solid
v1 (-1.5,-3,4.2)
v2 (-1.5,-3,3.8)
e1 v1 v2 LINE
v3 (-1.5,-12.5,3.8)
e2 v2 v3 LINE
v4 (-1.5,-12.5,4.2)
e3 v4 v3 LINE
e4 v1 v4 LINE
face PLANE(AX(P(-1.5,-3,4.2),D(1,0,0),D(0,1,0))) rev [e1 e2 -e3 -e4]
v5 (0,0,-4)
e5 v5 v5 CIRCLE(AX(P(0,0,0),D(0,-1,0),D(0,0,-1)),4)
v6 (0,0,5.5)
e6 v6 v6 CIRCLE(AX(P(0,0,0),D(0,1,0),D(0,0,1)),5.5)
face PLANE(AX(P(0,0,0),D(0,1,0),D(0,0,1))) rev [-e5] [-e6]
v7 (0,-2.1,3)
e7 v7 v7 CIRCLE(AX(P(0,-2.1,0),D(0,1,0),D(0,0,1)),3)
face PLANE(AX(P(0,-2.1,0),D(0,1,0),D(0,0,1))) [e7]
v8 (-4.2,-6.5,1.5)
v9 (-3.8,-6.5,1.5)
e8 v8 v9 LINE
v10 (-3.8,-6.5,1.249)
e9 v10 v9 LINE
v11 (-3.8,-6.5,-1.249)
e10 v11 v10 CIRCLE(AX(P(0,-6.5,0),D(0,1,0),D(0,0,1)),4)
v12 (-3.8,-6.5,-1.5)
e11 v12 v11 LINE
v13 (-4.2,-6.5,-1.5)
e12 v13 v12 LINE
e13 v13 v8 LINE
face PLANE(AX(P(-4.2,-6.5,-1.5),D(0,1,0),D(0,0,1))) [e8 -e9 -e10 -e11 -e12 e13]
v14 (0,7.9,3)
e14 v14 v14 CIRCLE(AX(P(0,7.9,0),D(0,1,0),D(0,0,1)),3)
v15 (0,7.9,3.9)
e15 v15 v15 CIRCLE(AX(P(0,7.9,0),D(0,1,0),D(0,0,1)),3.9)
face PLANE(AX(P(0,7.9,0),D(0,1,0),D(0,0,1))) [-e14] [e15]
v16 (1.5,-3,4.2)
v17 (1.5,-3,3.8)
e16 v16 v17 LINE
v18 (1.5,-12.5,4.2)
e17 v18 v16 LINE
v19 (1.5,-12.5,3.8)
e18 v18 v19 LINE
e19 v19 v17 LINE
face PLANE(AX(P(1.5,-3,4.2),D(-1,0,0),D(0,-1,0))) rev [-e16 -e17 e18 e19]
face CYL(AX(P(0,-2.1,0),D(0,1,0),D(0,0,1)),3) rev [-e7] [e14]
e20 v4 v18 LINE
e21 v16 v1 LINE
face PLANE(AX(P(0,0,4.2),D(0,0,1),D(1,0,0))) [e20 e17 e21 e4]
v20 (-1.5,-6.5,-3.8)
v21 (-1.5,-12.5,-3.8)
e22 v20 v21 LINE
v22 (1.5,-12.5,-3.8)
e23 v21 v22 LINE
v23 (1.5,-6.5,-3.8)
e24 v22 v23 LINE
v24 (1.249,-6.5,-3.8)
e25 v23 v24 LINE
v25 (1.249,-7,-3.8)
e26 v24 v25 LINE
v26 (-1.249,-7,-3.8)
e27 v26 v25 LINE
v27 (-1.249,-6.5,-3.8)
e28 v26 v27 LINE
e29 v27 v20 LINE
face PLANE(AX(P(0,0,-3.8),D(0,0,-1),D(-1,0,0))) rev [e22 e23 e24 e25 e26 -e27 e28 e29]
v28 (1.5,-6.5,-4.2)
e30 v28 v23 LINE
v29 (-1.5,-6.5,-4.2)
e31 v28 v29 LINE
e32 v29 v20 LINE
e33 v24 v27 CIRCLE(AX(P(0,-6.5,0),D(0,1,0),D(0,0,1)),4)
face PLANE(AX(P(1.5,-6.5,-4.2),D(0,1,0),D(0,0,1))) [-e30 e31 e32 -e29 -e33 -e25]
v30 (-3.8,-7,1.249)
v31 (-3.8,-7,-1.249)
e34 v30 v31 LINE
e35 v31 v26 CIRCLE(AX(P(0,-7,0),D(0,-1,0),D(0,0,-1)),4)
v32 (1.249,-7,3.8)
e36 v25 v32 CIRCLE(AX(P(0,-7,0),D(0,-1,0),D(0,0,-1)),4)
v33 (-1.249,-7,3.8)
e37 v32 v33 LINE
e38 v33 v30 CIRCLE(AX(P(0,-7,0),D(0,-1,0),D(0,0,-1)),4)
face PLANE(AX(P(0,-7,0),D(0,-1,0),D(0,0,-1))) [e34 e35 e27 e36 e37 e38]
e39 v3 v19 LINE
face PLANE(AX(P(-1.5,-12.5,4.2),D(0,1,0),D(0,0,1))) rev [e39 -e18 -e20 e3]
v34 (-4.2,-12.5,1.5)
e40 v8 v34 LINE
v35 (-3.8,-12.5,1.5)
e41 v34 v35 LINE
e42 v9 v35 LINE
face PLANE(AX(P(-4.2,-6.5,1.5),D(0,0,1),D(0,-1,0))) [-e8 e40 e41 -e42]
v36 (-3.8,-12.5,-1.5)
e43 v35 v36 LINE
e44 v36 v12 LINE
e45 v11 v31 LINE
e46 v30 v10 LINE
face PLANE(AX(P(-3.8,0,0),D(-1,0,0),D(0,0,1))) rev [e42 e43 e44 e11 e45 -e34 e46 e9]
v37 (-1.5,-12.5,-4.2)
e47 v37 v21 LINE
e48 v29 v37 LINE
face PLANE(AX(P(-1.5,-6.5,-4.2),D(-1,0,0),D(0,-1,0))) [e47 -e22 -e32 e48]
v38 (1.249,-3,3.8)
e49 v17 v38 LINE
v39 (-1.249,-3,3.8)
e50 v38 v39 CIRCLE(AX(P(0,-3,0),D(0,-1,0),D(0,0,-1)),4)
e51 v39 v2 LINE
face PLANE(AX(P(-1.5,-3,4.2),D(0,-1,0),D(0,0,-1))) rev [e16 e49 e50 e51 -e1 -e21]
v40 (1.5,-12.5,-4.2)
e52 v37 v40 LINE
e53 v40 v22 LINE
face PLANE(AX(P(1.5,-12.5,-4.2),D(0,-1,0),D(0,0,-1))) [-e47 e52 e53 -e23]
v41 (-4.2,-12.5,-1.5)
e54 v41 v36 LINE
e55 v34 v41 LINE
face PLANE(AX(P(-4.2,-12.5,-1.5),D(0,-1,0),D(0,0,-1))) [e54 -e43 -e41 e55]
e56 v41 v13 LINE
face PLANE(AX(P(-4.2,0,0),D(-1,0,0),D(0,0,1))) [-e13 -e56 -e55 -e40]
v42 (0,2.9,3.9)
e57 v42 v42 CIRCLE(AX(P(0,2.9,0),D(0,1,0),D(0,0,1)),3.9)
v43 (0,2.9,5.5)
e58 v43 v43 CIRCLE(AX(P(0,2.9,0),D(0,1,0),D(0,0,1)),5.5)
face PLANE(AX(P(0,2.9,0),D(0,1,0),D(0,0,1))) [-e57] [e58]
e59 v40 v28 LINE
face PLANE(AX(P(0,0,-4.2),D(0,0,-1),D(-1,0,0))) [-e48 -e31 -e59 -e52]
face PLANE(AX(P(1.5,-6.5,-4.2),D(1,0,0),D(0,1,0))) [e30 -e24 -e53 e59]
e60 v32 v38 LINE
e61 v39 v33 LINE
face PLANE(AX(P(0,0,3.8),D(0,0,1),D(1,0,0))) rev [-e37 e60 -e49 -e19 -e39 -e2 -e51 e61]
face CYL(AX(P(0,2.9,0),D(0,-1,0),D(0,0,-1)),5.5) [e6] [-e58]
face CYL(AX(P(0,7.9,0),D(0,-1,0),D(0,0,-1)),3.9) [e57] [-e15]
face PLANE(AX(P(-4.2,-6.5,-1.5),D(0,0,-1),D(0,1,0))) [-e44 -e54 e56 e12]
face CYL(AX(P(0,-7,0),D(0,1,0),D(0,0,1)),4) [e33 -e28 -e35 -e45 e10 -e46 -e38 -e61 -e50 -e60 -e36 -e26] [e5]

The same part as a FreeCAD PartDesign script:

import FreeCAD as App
import Part
import Sketcher
from FreeCAD import Vector
Q = App.Units.Quantity


def add_polygon(sketch, points):
    """Adds a closed chain of lines whose ends are joined by coincident constraints."""
    first, n = sketch.GeometryCount, len(points)
    for a, b in zip(points, points[1:] + points[:1]):
        sketch.addGeometry(Part.LineSegment(App.Vector(*a, 0), App.Vector(*b, 0)), False)
    for i in range(n):
        sketch.addConstraint(Sketcher.Constraint("Coincident", first + i, 2, first + (i + 1) % n, 1))

doc = App.newDocument("Part")
body = doc.addObject("PartDesign::Body", "Body")

# Sketch on XZ plane
sketch1 = body.newObject("Sketcher::SketchObject", "Sketch")
sketch1.AttachmentSupport = (doc.getObject("XZ_Plane"), [""])
sketch1.MapMode = "FlatFace"
sketch1.addGeometry(Part.Circle(Vector(0, 0, 0), Vector(0, 0, 1), 6), False)
sketch1.addConstraint([
    Sketcher.Constraint("Coincident", 0, 3, -1, 1),
    Sketcher.Constraint("Diameter", 0, Q("11 mm")),
])
pad1 = body.newObject("PartDesign::Pad", "Pad")
pad1.Profile = sketch1
pad1.Length = 2.9
pad1.Reversed = True

# Sketch on XZ plane
sketch2 = body.newObject("Sketcher::SketchObject", "Sketch001")
sketch2.AttachmentSupport = (doc.getObject("XZ_Plane"), [""])
sketch2.MapMode = "FlatFace"
sketch2.AttachmentOffset = App.Placement(Vector(0, 0, -2.9), App.Rotation())
sketch2.addGeometry(Part.Circle(Vector(0, 0, 0), Vector(0, 0, 1), 3.9), False)
sketch2.addConstraint([
    Sketcher.Constraint("Coincident", 0, 3, -1, 1),
    Sketcher.Constraint("Diameter", 0, Q("7.8 mm")),
])
pad2 = body.newObject("PartDesign::Pad", "Pad001")
pad2.Profile = sketch2
pad2.Length = 5
pad2.Reversed = True

# Sketch on XZ plane
sketch3 = body.newObject("Sketcher::SketchObject", "Sketch002")
sketch3.AttachmentSupport = (doc.getObject("XZ_Plane"), [""])
sketch3.MapMode = "FlatFace"
sketch3.addGeometry(Part.Circle(Vector(0, 0, 0), Vector(0, 0, 1), 4), False)
sketch3.addConstraint([
    Sketcher.Constraint("Coincident", 0, 3, -1, 1),
    Sketcher.Constraint("Diameter", 0, Q("8 mm")),
])
pad3 = body.newObject("PartDesign::Pad", "Pad002")
pad3.Profile = sketch3
pad3.Length = 7

# Sketch on XZ plane
sketch4 = body.newObject("Sketcher::SketchObject", "Sketch003")
sketch4.AttachmentSupport = (doc.getObject("XZ_Plane"), [""])
sketch4.MapMode = "FlatFace"
sketch4.AttachmentOffset = App.Placement(Vector(0, 0, -7.9), App.Rotation())
sketch4.addGeometry(Part.Circle(Vector(0, 0, 0), Vector(0, 0, 1), 3), False)
sketch4.addConstraint([
    Sketcher.Constraint("Coincident", 0, 3, -1, 1),
    Sketcher.Constraint("Diameter", 0, Q("6 mm")),
])
pocket1 = body.newObject("PartDesign::Pocket", "Pocket")
pocket1.Profile = sketch4
pocket1.Length = 10
pocket1.Reversed = True

# Sketch on XY plane
sketch5 = body.newObject("Sketcher::SketchObject", "Sketch004")
sketch5.AttachmentSupport = (doc.getObject("XY_Plane"), [""])
sketch5.MapMode = "FlatFace"
sketch5.AttachmentOffset = App.Placement(Vector(0, 0, 3.8), App.Rotation())
add_polygon(sketch5, [(-1.5, -3), (-1.5, -12.5), (1.5, -12.5), (1.5, -3)])  # lines 0-3
sketch5.addConstraint([
    Sketcher.Constraint("Vertical", 0),
    Sketcher.Constraint("Horizontal", 1),
    Sketcher.Constraint("Vertical", 2),
    Sketcher.Constraint("Horizontal", 3),
    Sketcher.Constraint("DistanceX", 1, 1, 1, 2, Q("3 mm")),
    Sketcher.Constraint("DistanceY", 0, 2, 0, 1, Q("9.5 mm")),
    Sketcher.Constraint("DistanceY", 2, 2, -1, 1, Q("3 mm")),
    Sketcher.Constraint("DistanceX", 0, 2, -1, 1, Q("1.5 mm")),
])
pad4 = body.newObject("PartDesign::Pad", "Pad003")
pad4.Profile = sketch5
pad4.Length = 0.4

# Sketch on YZ plane
sketch6 = body.newObject("Sketcher::SketchObject", "Sketch005")
sketch6.AttachmentSupport = (doc.getObject("YZ_Plane"), [""])
sketch6.MapMode = "FlatFace"
sketch6.AttachmentOffset = App.Placement(Vector(0, 0, -3.8), App.Rotation())
add_polygon(sketch6, [(-6.5, 1.5), (-12.5, 1.5), (-12.5, -1.5), (-6.5, -1.5)])  # lines 0-3
sketch6.addConstraint([
    Sketcher.Constraint("Horizontal", 0),
    Sketcher.Constraint("Vertical", 1),
    Sketcher.Constraint("Horizontal", 2),
    Sketcher.Constraint("Vertical", 3),
    Sketcher.Constraint("DistanceX", 0, 2, 0, 1, Q("6 mm")),
    Sketcher.Constraint("DistanceY", 1, 2, 1, 1, Q("3 mm")),
    Sketcher.Constraint("DistanceX", 0, 2, -1, 1, Q("12.5 mm")),
    Sketcher.Constraint("DistanceY", -1, 1, 0, 2, Q("1.5 mm")),
])
pad5 = body.newObject("PartDesign::Pad", "Pad004")
pad5.Profile = sketch6
pad5.Length = 0.4
pad5.Reversed = True

# Sketch on XY plane
sketch7 = body.newObject("Sketcher::SketchObject", "Sketch006")
sketch7.AttachmentSupport = (doc.getObject("XY_Plane"), [""])
sketch7.MapMode = "FlatFace"
sketch7.AttachmentOffset = App.Placement(Vector(0, 0, -3.8), App.Rotation())
add_polygon(sketch7, [(-1.5, -6.5), (-1.5, -12.5), (1.5, -12.5), (1.5, -6.5)])  # lines 0-3
sketch7.addConstraint([
    Sketcher.Constraint("Vertical", 0),
    Sketcher.Constraint("Horizontal", 1),
    Sketcher.Constraint("Vertical", 2),
    Sketcher.Constraint("Horizontal", 3),
    Sketcher.Constraint("DistanceX", 1, 1, 1, 2, Q("3 mm")),
    Sketcher.Constraint("DistanceY", 0, 2, 0, 1, Q("6 mm")),
    Sketcher.Constraint("DistanceX", 0, 2, -1, 1, Q("1.5 mm")),
    Sketcher.Constraint("DistanceY", 0, 2, -1, 1, Q("12.5 mm")),
])
pad6 = body.newObject("PartDesign::Pad", "Pad005")
pad6.Profile = sketch7
pad6.Length = 0.4
pad6.Reversed = True

doc.recompute()
